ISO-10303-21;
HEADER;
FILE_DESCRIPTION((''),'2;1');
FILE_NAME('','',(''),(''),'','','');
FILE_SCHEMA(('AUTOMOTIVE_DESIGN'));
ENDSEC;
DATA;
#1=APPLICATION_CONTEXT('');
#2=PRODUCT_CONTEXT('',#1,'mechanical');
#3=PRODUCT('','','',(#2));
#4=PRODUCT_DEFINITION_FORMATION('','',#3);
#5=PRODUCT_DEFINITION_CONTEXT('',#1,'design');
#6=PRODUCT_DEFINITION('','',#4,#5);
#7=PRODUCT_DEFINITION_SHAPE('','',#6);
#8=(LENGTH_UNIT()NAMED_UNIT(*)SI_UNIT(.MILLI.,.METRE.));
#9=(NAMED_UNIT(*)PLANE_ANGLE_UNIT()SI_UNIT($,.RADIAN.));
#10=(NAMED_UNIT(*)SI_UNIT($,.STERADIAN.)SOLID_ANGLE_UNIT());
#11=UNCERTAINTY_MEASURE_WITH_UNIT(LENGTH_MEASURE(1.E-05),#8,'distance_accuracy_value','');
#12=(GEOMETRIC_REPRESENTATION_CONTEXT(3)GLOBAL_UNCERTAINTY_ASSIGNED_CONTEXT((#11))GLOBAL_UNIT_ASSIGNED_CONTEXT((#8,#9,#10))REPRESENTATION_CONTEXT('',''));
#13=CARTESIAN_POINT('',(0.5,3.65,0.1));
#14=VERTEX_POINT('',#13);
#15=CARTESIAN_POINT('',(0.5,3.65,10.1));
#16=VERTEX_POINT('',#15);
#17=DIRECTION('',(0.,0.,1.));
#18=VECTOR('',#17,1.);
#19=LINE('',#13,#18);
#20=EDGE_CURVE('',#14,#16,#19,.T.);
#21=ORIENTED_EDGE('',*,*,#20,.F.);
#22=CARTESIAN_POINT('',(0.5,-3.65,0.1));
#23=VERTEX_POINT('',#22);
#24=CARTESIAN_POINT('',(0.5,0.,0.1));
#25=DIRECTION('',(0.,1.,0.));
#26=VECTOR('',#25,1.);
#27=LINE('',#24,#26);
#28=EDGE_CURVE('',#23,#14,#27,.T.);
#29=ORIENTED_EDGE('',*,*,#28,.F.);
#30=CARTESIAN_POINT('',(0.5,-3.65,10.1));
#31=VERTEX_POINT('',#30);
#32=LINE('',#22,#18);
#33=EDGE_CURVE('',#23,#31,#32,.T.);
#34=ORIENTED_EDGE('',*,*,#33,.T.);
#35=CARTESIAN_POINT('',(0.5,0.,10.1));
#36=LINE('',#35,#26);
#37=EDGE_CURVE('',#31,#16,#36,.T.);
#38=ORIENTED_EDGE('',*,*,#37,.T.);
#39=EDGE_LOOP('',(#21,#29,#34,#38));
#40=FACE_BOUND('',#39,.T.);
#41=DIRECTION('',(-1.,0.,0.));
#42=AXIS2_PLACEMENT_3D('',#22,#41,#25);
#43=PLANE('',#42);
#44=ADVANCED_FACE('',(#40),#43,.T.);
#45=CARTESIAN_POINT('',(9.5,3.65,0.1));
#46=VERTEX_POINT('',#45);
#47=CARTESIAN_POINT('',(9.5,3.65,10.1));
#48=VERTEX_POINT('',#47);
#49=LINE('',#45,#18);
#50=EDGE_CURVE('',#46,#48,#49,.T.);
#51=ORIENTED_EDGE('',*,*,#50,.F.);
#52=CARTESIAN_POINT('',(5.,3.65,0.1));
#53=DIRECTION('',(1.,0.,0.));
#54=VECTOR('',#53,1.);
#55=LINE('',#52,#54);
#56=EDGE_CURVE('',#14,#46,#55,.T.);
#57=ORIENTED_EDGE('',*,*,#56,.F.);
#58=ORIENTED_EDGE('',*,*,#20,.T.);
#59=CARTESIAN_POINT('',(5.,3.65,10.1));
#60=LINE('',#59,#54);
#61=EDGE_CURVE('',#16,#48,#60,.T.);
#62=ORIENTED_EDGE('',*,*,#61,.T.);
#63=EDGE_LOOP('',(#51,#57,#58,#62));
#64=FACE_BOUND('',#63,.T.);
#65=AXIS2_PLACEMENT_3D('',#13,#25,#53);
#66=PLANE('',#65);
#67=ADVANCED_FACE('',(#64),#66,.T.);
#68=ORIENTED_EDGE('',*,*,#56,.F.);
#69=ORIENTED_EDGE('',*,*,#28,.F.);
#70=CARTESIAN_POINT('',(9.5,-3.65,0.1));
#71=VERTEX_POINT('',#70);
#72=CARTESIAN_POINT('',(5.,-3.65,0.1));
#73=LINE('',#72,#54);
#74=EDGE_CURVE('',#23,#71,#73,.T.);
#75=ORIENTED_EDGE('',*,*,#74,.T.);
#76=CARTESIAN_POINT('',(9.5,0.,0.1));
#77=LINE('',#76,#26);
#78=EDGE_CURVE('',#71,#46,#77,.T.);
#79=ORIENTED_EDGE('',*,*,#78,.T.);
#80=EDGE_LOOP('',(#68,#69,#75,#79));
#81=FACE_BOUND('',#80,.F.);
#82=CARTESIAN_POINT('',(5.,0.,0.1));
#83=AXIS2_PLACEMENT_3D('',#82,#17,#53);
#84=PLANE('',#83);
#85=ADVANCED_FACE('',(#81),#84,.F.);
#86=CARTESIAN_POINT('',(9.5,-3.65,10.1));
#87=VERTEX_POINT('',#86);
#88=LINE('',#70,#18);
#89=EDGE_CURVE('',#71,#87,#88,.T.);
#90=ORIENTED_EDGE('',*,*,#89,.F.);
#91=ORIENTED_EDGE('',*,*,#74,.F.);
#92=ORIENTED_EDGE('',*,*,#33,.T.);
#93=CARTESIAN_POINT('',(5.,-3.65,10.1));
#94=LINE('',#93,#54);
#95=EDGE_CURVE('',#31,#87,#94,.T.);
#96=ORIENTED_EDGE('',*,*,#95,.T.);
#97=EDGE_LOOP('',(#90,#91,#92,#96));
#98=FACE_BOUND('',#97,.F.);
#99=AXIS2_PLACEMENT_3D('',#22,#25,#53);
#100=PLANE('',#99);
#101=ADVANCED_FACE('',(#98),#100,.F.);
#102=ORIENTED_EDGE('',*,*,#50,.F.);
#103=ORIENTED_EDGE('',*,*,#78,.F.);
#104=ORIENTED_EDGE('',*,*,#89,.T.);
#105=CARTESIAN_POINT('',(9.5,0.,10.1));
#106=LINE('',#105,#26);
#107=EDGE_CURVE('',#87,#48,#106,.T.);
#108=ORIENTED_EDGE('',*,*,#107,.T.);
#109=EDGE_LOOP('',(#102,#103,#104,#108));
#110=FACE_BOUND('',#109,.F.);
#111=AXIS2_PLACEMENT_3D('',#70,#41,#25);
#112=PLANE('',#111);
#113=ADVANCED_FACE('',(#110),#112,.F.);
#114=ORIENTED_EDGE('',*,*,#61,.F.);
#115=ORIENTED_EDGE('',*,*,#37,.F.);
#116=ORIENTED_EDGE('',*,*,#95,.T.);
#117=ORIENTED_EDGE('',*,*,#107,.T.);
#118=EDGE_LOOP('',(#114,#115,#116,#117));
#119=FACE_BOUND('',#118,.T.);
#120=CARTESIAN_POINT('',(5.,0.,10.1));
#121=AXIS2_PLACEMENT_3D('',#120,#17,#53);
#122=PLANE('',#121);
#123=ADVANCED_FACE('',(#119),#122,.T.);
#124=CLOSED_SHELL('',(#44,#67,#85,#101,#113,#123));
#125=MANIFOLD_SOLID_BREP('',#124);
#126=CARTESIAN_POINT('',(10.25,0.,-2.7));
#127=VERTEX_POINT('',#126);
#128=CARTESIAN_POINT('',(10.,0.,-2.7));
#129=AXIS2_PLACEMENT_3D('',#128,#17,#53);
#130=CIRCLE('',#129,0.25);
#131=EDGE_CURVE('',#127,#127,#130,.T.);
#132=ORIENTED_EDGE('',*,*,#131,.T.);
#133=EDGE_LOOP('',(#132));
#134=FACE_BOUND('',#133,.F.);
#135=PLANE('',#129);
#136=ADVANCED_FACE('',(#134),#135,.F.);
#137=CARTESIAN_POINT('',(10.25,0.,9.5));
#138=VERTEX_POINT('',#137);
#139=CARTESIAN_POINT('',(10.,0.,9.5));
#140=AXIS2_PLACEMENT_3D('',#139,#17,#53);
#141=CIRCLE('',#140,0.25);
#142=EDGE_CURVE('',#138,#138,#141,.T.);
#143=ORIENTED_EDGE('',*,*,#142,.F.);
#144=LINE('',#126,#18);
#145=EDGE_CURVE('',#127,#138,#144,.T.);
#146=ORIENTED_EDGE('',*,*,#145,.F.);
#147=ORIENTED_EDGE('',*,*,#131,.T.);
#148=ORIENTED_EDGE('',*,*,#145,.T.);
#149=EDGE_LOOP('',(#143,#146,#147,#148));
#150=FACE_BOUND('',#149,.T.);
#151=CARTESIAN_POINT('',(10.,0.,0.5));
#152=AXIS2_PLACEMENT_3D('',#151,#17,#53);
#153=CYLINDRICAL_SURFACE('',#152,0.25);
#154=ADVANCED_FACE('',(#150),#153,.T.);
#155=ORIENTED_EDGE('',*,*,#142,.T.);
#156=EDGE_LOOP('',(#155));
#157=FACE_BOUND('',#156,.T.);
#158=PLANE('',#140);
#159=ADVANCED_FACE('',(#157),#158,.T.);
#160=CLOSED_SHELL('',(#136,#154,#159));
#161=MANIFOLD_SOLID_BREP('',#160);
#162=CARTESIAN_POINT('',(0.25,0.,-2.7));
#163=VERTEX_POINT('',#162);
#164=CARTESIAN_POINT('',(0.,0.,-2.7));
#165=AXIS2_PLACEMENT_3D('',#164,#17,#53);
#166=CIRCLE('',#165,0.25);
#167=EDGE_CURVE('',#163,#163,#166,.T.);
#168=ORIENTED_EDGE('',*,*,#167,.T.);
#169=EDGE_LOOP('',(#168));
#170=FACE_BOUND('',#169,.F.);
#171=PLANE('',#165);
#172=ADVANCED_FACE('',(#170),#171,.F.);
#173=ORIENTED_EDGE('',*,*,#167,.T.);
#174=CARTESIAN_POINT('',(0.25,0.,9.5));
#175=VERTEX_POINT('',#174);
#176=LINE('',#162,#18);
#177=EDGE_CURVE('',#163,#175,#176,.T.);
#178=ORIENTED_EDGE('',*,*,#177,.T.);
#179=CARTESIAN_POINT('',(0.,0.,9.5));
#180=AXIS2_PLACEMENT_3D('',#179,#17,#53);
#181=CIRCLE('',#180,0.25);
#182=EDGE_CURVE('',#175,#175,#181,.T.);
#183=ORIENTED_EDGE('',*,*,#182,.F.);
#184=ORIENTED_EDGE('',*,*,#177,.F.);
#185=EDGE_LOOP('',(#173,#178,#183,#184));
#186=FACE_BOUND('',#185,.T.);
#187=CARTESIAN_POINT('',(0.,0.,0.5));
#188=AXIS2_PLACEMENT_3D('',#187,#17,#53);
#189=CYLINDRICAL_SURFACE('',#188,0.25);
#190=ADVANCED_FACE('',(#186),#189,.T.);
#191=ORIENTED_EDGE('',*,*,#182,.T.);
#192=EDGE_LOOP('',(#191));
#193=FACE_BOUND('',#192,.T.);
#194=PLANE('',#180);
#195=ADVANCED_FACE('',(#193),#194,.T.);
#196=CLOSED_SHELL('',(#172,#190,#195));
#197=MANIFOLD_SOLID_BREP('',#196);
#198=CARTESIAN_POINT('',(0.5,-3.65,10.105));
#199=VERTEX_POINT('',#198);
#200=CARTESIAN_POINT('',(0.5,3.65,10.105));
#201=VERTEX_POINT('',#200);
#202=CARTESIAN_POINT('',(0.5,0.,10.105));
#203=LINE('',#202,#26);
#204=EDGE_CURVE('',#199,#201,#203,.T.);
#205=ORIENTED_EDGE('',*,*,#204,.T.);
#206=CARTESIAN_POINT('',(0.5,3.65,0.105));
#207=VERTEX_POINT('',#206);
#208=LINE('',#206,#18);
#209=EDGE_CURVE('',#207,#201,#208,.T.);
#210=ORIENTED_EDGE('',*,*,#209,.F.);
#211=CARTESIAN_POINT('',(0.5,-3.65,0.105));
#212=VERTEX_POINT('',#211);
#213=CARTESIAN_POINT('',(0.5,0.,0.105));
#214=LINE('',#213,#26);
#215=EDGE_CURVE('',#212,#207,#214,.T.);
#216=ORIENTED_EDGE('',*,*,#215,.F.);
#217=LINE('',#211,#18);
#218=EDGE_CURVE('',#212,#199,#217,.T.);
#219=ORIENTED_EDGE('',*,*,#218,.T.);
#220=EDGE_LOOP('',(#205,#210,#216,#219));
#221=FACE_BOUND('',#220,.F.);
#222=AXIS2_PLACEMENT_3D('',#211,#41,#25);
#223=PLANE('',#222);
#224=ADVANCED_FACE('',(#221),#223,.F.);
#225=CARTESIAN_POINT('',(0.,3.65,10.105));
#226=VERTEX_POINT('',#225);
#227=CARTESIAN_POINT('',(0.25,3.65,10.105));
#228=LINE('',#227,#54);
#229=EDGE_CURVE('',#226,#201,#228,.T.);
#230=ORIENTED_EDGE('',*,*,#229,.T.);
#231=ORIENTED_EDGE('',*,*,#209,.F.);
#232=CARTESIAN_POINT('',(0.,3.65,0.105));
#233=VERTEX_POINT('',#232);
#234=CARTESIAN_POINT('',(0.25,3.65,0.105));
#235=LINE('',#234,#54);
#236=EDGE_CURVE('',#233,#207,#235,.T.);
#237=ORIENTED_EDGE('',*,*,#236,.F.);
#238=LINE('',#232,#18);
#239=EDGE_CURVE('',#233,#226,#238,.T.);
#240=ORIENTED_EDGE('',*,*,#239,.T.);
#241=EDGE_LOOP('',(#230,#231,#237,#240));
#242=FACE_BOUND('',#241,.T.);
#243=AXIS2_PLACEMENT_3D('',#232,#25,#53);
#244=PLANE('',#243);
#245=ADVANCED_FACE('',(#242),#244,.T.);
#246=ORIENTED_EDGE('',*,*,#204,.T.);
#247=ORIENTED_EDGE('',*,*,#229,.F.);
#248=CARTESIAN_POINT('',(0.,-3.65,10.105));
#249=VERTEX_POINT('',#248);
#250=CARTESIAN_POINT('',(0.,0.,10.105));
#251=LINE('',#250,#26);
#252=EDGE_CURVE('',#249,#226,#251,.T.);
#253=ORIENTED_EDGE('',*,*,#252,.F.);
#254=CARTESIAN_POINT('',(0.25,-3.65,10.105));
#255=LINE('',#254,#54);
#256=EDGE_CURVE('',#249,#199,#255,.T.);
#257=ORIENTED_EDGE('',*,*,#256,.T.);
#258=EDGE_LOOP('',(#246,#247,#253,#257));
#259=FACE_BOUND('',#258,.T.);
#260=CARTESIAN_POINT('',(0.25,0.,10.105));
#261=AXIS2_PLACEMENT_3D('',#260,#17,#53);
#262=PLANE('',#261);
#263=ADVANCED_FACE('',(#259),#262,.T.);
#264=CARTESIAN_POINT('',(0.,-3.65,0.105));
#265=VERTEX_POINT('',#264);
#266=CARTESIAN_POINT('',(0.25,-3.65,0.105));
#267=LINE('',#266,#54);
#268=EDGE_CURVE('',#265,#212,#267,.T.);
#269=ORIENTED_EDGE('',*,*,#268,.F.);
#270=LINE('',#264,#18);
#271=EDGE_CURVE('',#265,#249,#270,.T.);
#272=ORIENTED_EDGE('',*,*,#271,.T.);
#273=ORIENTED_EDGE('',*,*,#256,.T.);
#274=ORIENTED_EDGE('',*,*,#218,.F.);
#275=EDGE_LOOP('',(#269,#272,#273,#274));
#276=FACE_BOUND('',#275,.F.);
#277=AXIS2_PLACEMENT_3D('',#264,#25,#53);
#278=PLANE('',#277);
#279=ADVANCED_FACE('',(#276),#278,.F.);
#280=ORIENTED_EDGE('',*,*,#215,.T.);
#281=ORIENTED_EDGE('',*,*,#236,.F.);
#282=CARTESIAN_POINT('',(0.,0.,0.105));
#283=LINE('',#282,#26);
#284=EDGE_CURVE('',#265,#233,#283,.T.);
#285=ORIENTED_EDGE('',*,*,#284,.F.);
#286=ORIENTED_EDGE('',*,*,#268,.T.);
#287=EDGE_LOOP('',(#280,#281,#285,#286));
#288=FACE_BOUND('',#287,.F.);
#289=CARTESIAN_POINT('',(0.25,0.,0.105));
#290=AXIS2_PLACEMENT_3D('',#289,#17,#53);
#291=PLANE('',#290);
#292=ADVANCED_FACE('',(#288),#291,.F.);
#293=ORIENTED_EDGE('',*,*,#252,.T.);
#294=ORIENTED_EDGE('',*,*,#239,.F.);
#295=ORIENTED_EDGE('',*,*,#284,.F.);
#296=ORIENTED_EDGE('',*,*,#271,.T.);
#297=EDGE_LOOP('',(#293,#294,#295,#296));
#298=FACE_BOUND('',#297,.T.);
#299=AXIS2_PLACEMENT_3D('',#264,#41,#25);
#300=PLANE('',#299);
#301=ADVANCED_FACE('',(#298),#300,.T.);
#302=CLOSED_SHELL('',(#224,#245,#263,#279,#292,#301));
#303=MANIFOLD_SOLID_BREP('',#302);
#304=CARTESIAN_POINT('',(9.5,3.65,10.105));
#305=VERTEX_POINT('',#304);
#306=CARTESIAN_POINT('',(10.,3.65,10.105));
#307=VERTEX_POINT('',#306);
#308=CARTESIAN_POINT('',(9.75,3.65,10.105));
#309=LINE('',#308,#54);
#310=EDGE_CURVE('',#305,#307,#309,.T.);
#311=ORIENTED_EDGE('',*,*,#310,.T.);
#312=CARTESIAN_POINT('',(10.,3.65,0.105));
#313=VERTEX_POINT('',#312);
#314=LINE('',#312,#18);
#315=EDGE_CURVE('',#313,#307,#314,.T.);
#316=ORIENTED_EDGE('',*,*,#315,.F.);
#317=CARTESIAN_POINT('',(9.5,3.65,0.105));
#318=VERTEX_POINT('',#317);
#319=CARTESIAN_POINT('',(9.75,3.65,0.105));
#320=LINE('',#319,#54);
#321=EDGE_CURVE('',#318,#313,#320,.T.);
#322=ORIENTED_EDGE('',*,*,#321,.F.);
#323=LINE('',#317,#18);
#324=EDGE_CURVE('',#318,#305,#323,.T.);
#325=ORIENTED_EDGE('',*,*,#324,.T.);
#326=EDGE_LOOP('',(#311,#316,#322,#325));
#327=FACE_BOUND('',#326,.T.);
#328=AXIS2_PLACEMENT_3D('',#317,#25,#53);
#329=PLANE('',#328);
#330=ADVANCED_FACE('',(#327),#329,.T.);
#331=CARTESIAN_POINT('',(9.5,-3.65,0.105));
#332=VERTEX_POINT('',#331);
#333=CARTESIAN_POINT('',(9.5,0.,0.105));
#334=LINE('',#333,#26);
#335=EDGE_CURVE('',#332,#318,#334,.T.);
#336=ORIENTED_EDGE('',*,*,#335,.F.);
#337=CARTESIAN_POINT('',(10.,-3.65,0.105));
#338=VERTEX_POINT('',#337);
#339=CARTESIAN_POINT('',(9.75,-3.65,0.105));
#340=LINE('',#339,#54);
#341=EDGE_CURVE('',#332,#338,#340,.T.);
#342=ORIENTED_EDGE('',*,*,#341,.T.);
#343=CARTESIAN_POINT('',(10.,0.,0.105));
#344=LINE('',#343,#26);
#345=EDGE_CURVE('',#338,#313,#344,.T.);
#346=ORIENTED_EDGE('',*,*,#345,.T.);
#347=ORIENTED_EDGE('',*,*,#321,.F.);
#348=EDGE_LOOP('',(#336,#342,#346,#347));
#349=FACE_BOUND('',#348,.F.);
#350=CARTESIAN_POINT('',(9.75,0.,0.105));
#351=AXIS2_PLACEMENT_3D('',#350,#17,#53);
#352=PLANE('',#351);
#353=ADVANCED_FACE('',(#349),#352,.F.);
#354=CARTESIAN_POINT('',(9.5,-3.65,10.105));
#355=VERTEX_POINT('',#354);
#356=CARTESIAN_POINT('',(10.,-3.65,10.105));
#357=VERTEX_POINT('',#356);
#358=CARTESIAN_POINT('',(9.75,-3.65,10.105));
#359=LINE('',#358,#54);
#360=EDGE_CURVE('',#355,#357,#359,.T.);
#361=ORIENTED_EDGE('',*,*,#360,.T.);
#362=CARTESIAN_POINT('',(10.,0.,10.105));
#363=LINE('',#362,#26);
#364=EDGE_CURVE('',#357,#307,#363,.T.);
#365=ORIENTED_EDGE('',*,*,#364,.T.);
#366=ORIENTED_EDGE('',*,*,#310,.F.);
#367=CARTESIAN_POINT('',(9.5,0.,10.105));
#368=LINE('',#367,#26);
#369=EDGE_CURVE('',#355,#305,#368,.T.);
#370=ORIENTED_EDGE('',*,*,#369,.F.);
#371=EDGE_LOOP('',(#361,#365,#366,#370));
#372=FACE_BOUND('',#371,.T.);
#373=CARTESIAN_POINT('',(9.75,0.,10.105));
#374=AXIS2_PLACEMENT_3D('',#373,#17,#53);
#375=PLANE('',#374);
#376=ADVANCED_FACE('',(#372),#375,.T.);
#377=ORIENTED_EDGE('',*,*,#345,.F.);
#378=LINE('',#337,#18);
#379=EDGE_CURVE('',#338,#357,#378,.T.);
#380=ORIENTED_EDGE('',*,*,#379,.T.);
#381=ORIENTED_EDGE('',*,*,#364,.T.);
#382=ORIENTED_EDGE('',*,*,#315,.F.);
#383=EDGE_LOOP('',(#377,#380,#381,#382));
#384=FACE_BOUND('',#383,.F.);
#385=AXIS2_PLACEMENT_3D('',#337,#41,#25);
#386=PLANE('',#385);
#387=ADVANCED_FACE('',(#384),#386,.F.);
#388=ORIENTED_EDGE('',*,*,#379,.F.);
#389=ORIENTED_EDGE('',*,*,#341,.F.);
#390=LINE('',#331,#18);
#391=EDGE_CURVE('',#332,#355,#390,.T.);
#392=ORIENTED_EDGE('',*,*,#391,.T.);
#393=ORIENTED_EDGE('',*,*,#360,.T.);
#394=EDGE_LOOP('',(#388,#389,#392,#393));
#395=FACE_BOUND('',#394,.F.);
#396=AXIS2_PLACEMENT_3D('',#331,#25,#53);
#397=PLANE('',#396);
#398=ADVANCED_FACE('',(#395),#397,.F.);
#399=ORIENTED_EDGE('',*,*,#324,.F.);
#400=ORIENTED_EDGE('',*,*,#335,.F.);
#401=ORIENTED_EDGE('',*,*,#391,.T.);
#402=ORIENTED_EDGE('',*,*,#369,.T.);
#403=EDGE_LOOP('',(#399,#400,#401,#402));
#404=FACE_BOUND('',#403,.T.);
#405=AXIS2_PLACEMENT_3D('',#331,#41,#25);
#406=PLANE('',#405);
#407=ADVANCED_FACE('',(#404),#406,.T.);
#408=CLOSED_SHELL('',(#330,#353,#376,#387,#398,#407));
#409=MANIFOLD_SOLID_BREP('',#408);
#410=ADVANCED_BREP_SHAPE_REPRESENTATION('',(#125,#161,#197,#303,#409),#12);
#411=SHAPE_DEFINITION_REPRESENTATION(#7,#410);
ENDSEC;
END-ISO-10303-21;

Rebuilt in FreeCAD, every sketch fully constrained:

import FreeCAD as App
import Part
import Sketcher
from FreeCAD import Vector
Q = App.Units.Quantity


def add_polygon(sketch, points):
    """Adds a closed chain of lines whose ends are joined by coincident constraints."""
    first, n = sketch.GeometryCount, len(points)
    for a, b in zip(points, points[1:] + points[:1]):
        sketch.addGeometry(Part.LineSegment(App.Vector(*a, 0), App.Vector(*b, 0)), False)
    for i in range(n):
        sketch.addConstraint(Sketcher.Constraint("Coincident", first + i, 2, first + (i + 1) % n, 1))

doc = App.newDocument("Part")
body = doc.addObject("PartDesign::Body", "Body")

# Sketch on XY plane
sketch1 = body.newObject("Sketcher::SketchObject", "Sketch")
sketch1.AttachmentSupport = (doc.getObject("XY_Plane"), [""])
sketch1.MapMode = "FlatFace"
sketch1.AttachmentOffset = App.Placement(Vector(0, 0, 0.1), App.Rotation())
add_polygon(sketch1, [(0, 4), (0, -4), (10, -4), (10, 4)])  # lines 0-3
sketch1.addConstraint(Sketcher.Constraint("Vertical", 0))
sketch1.addConstraint(Sketcher.Constraint("Horizontal", 1))
sketch1.addConstraint(Sketcher.Constraint("Vertical", 2))
sketch1.addConstraint(Sketcher.Constraint("Horizontal", 3))
sketch1.addConstraint(Sketcher.Constraint("DistanceX", 1, 1, 1, 2, Q("9 mm")))
sketch1.addConstraint(Sketcher.Constraint("DistanceY", 0, 2, 0, 1, Q("7.3 mm")))
sketch1.addConstraint(Sketcher.Constraint("DistanceX", -1, 1, 0, 2, Q("0.5 mm")))
sketch1.addConstraint(Sketcher.Constraint("DistanceY", 0, 2, -1, 1, Q("3.65 mm")))
pad1 = body.newObject("PartDesign::Pad", "Pad")
pad1.Profile = sketch1
pad1.Length = 10
body2 = doc.addObject("PartDesign::Body", "Body001")
body2.AllowCompound = True

# Sketch on XY plane
sketch2 = body2.newObject("Sketcher::SketchObject", "Sketch001")
sketch2.AttachmentSupport = (doc.getObject("XY_Plane001"), [""])
sketch2.MapMode = "FlatFace"
sketch2.AttachmentOffset = App.Placement(Vector(0, 0, 0.5), App.Rotation())
sketch2.addGeometry(Part.Circle(Vector(0, 0, 0), Vector(0, 0, 1), 0.25), False)
sketch2.addGeometry(Part.Circle(Vector(10, 0, 0), Vector(0, 0, 1), 0.25), False)
sketch2.addConstraint(Sketcher.Constraint("Coincident", 0, 3, -1, 1))
sketch2.addConstraint(Sketcher.Constraint("Equal", 0, 1))
sketch2.addConstraint(Sketcher.Constraint("PointOnObject", 1, 3, -1))
sketch2.addConstraint(Sketcher.Constraint("Diameter", 0, Q("0.5 mm")))
sketch2.addConstraint(Sketcher.Constraint("DistanceX", -1, 1, 1, 3, Q("10 mm")))
pad2 = body2.newObject("PartDesign::Pad", "Pad001")
pad2.Profile = sketch2
pad2.Type = "TwoLengths"
pad2.Length = 9
pad2.Length2 = 3.2
body3 = doc.addObject("PartDesign::Body", "Body002")
body3.AllowCompound = True

# Sketch on XY plane
sketch3 = body3.newObject("Sketcher::SketchObject", "Sketch002")
sketch3.AttachmentSupport = (doc.getObject("XY_Plane002"), [""])
sketch3.MapMode = "FlatFace"
sketch3.AttachmentOffset = App.Placement(Vector(0, 0, 0.105), App.Rotation())
add_polygon(sketch3, [(0, 3.6), (0, -3.6), (0.5, -3.6), (0.5, 3.6)])  # lines 0-3
add_polygon(sketch3, [(9.5, 3.6), (9.5, -3.6), (10, -3.6), (10, 3.6)])  # lines 4-7
sketch3.addConstraint(Sketcher.Constraint("Vertical", 0))
sketch3.addConstraint(Sketcher.Constraint("Horizontal", 1))
sketch3.addConstraint(Sketcher.Constraint("Vertical", 2))
sketch3.addConstraint(Sketcher.Constraint("Horizontal", 3))
sketch3.addConstraint(Sketcher.Constraint("Vertical", 4))
sketch3.addConstraint(Sketcher.Constraint("Horizontal", 5))
sketch3.addConstraint(Sketcher.Constraint("Vertical", 6))
sketch3.addConstraint(Sketcher.Constraint("Horizontal", 7))
sketch3.addConstraint(Sketcher.Constraint("Symmetric", 0, 2, 3, 2, -1, 1))
sketch3.addConstraint(Sketcher.Constraint("Horizontal", 1, 2, 4, 2))
sketch3.addConstraint(Sketcher.Constraint("Horizontal", 3, 2, 6, 2))
sketch3.addConstraint(Sketcher.Constraint("Equal", 3, 5))
sketch3.addConstraint(Sketcher.Constraint("DistanceX", 1, 1, 1, 2, Q("0.5 mm")))
sketch3.addConstraint(Sketcher.Constraint("DistanceY", 0, 2, 0, 1, Q("7.3 mm")))
sketch3.addConstraint(Sketcher.Constraint("DistanceX", -1, 1, 5, 2, Q("10 mm")))
pad3 = body3.newObject("PartDesign::Pad", "Pad002")
pad3.Profile = sketch3
pad3.Length = 10

doc.recompute()
